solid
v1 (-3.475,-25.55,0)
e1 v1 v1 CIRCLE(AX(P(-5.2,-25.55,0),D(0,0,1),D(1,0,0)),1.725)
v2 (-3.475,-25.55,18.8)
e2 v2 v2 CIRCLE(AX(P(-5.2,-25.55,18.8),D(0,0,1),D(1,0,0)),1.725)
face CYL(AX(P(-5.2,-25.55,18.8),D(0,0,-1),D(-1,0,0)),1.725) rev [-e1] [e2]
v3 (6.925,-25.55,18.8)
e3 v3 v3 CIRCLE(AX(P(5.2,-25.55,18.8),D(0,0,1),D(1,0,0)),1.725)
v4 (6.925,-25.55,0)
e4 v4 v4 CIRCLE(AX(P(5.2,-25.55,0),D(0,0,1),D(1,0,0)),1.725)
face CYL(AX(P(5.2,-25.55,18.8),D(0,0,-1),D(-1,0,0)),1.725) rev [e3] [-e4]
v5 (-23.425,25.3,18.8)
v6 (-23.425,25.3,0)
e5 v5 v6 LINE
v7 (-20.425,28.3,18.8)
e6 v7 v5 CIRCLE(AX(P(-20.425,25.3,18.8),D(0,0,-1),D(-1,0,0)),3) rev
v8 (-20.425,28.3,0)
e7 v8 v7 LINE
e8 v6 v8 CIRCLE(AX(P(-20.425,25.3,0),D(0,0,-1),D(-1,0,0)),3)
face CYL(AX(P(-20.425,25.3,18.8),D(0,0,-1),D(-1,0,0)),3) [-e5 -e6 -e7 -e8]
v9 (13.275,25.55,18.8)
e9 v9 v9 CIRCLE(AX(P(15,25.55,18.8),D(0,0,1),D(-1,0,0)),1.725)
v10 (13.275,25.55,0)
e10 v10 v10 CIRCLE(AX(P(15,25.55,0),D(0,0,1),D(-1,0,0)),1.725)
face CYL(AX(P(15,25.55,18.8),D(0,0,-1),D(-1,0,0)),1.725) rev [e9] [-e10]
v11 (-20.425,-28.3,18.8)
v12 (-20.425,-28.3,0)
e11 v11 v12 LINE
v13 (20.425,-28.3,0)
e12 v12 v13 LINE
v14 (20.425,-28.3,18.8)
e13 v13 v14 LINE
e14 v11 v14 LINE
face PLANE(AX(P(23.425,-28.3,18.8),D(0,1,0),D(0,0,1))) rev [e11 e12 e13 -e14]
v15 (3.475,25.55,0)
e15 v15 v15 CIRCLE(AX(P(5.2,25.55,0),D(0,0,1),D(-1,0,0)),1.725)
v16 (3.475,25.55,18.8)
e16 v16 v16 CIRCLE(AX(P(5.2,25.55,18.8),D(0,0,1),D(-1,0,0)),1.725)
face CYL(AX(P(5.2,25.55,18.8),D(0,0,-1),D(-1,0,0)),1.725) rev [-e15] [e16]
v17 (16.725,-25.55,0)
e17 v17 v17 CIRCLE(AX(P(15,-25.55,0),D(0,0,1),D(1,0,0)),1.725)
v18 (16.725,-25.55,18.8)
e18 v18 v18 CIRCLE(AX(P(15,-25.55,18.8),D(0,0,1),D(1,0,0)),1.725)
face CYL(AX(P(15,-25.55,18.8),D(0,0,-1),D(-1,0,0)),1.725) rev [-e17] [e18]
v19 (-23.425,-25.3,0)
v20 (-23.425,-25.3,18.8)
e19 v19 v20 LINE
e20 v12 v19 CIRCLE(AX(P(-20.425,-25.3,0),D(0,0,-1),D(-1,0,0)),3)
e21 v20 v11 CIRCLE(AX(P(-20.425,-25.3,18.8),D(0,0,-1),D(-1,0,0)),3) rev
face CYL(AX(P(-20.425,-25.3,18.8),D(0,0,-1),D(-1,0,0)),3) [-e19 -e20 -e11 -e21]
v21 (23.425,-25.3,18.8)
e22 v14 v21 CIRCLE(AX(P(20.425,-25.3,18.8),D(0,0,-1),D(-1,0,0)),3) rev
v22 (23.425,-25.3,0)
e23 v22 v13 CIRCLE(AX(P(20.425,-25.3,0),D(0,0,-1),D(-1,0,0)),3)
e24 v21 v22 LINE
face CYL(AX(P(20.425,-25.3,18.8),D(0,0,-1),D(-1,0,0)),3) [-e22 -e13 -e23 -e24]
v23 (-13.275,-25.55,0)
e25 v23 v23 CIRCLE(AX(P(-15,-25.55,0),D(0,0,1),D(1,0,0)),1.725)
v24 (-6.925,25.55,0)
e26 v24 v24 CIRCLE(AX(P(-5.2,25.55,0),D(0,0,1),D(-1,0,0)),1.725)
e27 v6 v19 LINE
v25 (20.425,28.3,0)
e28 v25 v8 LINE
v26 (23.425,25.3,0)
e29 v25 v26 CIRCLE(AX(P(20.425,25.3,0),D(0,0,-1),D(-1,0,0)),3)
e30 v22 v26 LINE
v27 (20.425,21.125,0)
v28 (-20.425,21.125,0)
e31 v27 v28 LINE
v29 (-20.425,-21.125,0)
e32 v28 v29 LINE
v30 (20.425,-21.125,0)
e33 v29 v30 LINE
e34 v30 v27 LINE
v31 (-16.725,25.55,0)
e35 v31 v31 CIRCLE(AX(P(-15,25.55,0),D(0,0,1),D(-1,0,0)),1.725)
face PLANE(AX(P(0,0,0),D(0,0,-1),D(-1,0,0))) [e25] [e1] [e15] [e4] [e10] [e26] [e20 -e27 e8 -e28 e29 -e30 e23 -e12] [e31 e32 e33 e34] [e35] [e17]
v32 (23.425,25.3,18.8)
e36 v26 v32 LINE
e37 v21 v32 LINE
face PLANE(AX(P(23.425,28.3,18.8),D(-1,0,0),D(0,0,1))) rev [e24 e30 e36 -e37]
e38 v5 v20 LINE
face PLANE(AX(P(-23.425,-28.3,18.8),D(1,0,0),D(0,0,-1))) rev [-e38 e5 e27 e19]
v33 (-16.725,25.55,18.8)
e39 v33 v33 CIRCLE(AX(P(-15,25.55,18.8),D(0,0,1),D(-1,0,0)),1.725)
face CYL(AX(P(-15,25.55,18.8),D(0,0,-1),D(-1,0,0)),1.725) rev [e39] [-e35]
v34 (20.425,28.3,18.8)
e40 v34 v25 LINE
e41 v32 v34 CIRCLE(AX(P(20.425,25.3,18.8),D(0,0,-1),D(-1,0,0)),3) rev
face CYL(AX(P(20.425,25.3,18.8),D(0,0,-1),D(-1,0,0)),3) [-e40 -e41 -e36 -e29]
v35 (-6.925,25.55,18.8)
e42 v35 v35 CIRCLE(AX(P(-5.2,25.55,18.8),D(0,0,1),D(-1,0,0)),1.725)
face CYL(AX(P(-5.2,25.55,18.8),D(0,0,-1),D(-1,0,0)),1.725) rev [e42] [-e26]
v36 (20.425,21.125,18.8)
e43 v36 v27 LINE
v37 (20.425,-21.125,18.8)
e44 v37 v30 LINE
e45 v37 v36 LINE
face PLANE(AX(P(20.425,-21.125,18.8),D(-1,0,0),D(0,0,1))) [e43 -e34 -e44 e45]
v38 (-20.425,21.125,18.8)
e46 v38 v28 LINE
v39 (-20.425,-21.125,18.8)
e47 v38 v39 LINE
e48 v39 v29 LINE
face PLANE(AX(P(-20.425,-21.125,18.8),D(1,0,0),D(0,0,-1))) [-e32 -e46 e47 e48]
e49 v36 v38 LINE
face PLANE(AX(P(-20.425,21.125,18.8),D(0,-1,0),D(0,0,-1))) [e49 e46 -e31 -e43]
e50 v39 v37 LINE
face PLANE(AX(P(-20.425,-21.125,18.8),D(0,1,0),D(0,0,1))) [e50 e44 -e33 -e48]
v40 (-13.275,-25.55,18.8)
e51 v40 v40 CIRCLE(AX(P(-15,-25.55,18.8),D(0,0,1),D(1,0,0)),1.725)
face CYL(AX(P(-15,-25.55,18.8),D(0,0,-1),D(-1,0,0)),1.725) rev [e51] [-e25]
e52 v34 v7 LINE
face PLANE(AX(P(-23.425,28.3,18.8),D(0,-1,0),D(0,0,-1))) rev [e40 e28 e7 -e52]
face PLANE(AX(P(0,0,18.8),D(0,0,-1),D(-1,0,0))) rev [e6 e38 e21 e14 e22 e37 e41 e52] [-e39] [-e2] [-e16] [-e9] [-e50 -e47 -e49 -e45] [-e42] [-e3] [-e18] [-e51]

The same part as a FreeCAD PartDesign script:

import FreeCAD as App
import Part
import Sketcher
from FreeCAD import Vector
Q = App.Units.Quantity


def edges_at(feature, points):
    """Names of the edges that pass closest to the given points."""
    edges = feature.Shape.Edges
    near = lambda p: min(range(len(edges)), key=lambda i: edges[i].distToShape(Part.Vertex(*p))[0])
    return sorted({f"Edge{near(p) + 1}" for p in points})


def add_polygon(sketch, points):
    """Adds a closed chain of lines whose ends are joined by coincident constraints."""
    first, n = sketch.GeometryCount, len(points)
    for a, b in zip(points, points[1:] + points[:1]):
        sketch.addGeometry(Part.LineSegment(App.Vector(*a, 0), App.Vector(*b, 0)), False)
    for i in range(n):
        sketch.addConstraint(Sketcher.Constraint("Coincident", first + i, 2, first + (i + 1) % n, 1))

doc = App.newDocument("Part")
body = doc.addObject("PartDesign::Body", "Body")

sketch1 = doc.addObject("Sketcher::SketchObject", "Sketch")
body.addObject(sketch1)
sketch1.AttachmentSupport = (doc.XY_Plane, [""])
sketch1.MapMode = "FlatFace"
add_polygon(sketch1, [(-23.4, 28.3), (-23.4, -28.3), (23.4, -28.3), (23.4, 28.3)])
sketch1.addGeometry(Part.Circle(Vector(-15, -25.6, 0), Vector(0, 0, 1), 1.7), False)
sketch1.addGeometry(Part.Circle(Vector(-5.2, -25.6, 0), Vector(0, 0, 1), 1.7), False)
sketch1.addGeometry(Part.Circle(Vector(5.2, -25.6, 0), Vector(0, 0, 1), 1.7), False)
sketch1.addGeometry(Part.Circle(Vector(15, -25.6, 0), Vector(0, 0, 1), 1.7), False)
sketch1.addGeometry(Part.Circle(Vector(-15, 25.6, 0), Vector(0, 0, 1), 1.7), False)
sketch1.addGeometry(Part.Circle(Vector(-5.2, 25.6, 0), Vector(0, 0, 1), 1.7), False)
add_polygon(sketch1, [(20.4, -21.1), (-20.4, -21.1), (-20.4, 21.1), (20.4, 21.1)])
sketch1.addGeometry(Part.Circle(Vector(5.2, 25.6, 0), Vector(0, 0, 1), 1.7), False)
sketch1.addGeometry(Part.Circle(Vector(15, 25.6, 0), Vector(0, 0, 1), 1.7), False)
sketch1.addConstraint(Sketcher.Constraint("Vertical", 0))
sketch1.addConstraint(Sketcher.Constraint("Horizontal", 1))
sketch1.addConstraint(Sketcher.Constraint("Vertical", 2))
sketch1.addConstraint(Sketcher.Constraint("Horizontal", 3))
sketch1.addConstraint(Sketcher.Constraint("Horizontal", 10))
sketch1.addConstraint(Sketcher.Constraint("Vertical", 11))
sketch1.addConstraint(Sketcher.Constraint("Horizontal", 12))
sketch1.addConstraint(Sketcher.Constraint("Vertical", 13))
sketch1.addConstraint(Sketcher.Constraint("Equal", 4, 5))
sketch1.addConstraint(Sketcher.Constraint("Equal", 5, 6))
sketch1.addConstraint(Sketcher.Constraint("Equal", 6, 7))
sketch1.addConstraint(Sketcher.Constraint("Equal", 7, 8))
sketch1.addConstraint(Sketcher.Constraint("Equal", 8, 9))
sketch1.addConstraint(Sketcher.Constraint("Equal", 9, 14))
sketch1.addConstraint(Sketcher.Constraint("Equal", 14, 15))
sketch1.addConstraint(Sketcher.Constraint("Symmetric", 7, 3, 8, 3, -1, 1))
sketch1.addConstraint(Sketcher.Constraint("Symmetric", 6, 3, 9, 3, -1, 1))
sketch1.addConstraint(Sketcher.Constraint("Symmetric", 5, 3, 14, 3, -1, 1))
sketch1.addConstraint(Sketcher.Constraint("Symmetric", 4, 3, 15, 3, -1, 1))
sketch1.addConstraint(Sketcher.Constraint("Symmetric", 0, 2, 2, 2, -1, 1))
sketch1.addConstraint(Sketcher.Constraint("Symmetric", 10, 2, 12, 2, -1, 1))
sketch1.addConstraint(Sketcher.Constraint("Symmetric", 5, 3, 6, 3, -2))
sketch1.addConstraint(Sketcher.Constraint("Symmetric", 4, 3, 7, 3, -2))
sketch1.addConstraint(Sketcher.Constraint("Horizontal", 4, 3, 5, 3))
sketch1.addConstraint(Sketcher.Constraint("Diameter", 4, Q("3.45 mm")))
sketch1.addConstraint(Sketcher.Constraint("DistanceY", 0, 2, 0, 1, Q("56.6 mm")))
sketch1.addConstraint(Sketcher.Constraint("DistanceX", 4, 3, -1, 1, Q("15 mm")))
sketch1.addConstraint(Sketcher.Constraint("DistanceX", 0, 2, 10, 2, Q("3 mm")))
sketch1.addConstraint(Sketcher.Constraint("DistanceX", 1, 1, 1, 2, Q("46.85 mm")))
sketch1.addConstraint(Sketcher.Constraint("DistanceY", 11, 1, 11, 2, Q("42.25 mm")))
sketch1.addConstraint(Sketcher.Constraint("DistanceX", 5, 3, -1, 1, Q("5.2 mm")))
sketch1.addConstraint(Sketcher.Constraint("DistanceY", 4, 3, 8, 3, Q("51.1 mm")))
pad1 = doc.addObject("PartDesign::Pad", "Pad")
body.addObject(pad1)
pad1.Profile = sketch1
pad1.Length = 18.8
doc.recompute()

fillet = doc.addObject("PartDesign::Fillet", "Fillet")
body.addObject(fillet)
fillet.Base = (pad1, edges_at(pad1, [
    (-23.425, 28.3, 9.4),
    (23.425, 28.3, 9.4),
    (23.425, -28.3, 9.4),
    (-23.425, -28.3, 9.4),
]))
fillet.Radius = 3

doc.recompute()
